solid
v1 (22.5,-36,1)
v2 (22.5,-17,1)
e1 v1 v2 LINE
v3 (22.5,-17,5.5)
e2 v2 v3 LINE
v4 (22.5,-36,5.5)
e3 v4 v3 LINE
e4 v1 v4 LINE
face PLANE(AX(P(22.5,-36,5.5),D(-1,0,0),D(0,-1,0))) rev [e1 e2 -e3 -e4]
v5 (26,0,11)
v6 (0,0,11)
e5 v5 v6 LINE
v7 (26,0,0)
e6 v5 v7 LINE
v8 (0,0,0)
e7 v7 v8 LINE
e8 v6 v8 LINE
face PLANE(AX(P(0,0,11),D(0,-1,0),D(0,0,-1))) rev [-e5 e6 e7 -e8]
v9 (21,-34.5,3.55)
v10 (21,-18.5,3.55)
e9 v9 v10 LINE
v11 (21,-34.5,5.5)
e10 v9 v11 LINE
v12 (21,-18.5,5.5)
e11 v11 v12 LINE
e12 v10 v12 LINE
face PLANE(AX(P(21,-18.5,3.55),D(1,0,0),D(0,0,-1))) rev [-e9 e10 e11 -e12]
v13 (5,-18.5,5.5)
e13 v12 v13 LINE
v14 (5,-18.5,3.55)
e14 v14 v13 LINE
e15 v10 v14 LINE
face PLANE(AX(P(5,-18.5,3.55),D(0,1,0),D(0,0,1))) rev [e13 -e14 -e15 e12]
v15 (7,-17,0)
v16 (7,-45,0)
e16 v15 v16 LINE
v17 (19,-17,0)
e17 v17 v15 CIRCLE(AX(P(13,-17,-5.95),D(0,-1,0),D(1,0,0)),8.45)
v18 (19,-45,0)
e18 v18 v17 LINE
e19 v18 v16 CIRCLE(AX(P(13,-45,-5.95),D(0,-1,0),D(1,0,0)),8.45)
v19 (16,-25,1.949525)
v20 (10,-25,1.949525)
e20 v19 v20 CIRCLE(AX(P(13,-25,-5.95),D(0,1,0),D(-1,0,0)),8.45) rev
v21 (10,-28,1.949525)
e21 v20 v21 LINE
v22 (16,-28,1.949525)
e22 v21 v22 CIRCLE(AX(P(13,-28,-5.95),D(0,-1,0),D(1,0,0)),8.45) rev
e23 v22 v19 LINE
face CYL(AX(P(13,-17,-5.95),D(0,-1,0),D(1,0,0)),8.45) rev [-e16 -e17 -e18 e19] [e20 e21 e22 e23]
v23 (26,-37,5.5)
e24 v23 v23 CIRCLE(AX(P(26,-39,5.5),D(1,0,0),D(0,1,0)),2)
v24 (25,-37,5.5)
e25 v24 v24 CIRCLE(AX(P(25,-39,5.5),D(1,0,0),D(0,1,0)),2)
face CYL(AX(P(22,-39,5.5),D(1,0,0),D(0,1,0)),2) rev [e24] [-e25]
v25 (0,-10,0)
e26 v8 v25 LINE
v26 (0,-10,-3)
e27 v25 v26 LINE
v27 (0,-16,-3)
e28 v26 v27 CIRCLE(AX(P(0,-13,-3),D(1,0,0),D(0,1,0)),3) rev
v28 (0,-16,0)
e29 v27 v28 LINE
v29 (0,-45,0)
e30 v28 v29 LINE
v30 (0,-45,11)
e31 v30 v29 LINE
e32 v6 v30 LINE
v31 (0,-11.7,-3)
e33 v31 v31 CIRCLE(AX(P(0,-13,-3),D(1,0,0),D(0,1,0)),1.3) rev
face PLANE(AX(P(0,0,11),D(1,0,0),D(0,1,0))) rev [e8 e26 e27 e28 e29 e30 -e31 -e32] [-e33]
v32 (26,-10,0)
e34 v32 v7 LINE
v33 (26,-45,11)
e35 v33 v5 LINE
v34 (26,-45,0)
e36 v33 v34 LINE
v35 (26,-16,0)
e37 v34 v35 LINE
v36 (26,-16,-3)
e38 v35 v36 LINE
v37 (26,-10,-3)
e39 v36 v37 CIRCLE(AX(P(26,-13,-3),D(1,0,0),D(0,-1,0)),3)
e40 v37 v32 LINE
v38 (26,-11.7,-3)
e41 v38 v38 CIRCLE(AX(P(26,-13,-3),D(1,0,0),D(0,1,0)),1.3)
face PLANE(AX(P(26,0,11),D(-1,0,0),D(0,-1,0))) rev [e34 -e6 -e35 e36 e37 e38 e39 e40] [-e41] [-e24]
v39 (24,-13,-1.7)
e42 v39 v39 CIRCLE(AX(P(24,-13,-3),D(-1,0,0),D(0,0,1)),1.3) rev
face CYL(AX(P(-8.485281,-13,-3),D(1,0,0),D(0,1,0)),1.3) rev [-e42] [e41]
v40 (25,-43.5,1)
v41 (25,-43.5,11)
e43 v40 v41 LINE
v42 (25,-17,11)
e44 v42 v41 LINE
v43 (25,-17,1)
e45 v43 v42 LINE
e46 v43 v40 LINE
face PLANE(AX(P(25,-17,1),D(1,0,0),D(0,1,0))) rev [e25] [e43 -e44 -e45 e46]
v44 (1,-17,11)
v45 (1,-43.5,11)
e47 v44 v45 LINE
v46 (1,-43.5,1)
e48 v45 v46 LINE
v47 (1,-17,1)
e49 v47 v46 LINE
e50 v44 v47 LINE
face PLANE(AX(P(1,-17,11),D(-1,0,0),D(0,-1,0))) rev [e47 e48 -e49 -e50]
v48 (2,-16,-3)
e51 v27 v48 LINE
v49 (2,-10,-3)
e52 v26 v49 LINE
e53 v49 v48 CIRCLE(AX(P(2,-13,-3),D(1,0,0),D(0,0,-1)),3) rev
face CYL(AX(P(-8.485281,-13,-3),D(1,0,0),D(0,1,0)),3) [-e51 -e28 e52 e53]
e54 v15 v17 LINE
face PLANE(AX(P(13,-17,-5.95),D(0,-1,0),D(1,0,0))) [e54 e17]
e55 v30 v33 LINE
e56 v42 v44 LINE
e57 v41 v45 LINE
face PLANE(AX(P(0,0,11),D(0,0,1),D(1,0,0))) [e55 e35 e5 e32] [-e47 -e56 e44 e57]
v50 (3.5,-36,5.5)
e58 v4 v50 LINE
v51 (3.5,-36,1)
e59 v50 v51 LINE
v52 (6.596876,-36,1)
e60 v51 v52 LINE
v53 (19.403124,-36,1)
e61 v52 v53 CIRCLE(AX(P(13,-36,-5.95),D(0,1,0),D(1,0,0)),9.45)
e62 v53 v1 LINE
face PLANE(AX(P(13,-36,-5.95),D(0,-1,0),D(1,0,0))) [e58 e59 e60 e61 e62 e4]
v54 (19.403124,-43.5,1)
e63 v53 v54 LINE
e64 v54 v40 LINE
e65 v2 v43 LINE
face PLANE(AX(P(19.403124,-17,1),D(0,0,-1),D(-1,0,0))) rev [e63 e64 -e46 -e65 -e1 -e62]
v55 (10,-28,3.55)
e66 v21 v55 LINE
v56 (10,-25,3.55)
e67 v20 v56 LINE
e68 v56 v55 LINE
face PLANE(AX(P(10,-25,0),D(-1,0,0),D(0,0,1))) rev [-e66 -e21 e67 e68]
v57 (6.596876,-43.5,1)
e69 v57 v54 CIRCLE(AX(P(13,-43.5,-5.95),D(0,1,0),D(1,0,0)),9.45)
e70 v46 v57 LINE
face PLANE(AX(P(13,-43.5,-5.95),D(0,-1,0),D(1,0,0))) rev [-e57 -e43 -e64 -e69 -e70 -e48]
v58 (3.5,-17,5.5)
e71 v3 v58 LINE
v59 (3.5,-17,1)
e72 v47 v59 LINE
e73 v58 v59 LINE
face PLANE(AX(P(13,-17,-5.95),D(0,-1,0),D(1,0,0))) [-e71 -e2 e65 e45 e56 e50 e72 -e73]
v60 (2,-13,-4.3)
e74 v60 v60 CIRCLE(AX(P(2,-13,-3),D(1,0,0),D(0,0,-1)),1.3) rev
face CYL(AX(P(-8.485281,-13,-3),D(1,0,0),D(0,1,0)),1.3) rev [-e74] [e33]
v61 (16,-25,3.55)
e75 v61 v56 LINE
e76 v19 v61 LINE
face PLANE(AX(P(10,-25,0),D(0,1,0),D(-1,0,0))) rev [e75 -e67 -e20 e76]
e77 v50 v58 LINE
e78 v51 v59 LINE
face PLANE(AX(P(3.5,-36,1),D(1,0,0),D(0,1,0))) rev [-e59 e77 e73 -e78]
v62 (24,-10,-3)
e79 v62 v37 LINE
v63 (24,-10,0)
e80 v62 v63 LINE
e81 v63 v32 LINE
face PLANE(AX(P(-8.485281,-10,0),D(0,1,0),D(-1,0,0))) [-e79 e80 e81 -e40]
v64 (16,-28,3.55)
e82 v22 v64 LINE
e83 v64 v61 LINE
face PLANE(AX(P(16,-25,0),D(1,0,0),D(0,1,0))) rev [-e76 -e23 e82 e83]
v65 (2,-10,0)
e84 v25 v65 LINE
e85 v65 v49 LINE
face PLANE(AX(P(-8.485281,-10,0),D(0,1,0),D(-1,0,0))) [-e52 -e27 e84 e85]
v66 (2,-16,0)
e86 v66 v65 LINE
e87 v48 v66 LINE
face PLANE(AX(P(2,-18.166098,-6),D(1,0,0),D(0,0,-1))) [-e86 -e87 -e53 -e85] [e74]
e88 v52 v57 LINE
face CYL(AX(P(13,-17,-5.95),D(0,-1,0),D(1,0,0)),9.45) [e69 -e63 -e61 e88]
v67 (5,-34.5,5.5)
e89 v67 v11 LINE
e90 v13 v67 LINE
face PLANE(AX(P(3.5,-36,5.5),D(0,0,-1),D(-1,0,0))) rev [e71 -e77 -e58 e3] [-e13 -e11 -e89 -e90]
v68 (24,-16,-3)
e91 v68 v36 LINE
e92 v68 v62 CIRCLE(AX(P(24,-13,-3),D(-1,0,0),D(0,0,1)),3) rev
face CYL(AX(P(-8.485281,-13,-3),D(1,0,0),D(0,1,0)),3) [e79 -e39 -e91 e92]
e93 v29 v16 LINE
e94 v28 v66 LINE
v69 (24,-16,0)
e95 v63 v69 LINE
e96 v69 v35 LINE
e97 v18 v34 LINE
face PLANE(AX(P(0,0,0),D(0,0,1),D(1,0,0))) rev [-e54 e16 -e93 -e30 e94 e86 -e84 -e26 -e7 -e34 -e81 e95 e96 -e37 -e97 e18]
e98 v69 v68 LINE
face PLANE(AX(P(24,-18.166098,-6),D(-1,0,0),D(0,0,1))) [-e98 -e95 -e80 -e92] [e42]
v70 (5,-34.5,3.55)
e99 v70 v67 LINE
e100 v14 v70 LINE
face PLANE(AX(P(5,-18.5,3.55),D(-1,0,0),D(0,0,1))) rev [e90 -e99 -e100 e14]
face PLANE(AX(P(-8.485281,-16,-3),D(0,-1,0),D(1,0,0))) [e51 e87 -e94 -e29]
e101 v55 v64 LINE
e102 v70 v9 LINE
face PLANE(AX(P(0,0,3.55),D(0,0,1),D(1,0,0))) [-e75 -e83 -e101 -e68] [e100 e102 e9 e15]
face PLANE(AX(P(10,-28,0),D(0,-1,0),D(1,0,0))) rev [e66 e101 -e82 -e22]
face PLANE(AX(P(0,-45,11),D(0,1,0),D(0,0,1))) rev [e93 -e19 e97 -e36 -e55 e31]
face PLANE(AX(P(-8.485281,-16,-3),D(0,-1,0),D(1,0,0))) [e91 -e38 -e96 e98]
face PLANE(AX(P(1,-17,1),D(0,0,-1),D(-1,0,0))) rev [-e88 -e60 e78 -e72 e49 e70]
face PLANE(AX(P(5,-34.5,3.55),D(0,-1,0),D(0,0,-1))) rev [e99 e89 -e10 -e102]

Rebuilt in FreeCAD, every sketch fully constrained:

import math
import FreeCAD as App
import Part
import Sketcher

V = App.Vector

doc = App.newDocument("Part")
body = doc.addObject("PartDesign::Body", "Body")

sketch1 = doc.addObject("Sketcher::SketchObject", "Sketch")
body.addObject(sketch1)
sketch1.AttachmentSupport = (doc.XY_Plane, [""])
sketch1.MapMode = "FlatFace"
sketch1.addGeometry(Part.LineSegment(V(0, 0, 0), V(0, -45, 0)), False)
sketch1.addGeometry(Part.LineSegment(V(0, -45, 0), V(26, -45, 0)), False)
sketch1.addGeometry(Part.LineSegment(V(26, -45, 0), V(26, 0, 0)), False)
sketch1.addGeometry(Part.LineSegment(V(26, 0, 0), V(0, 0, 0)), False)
sketch1.addConstraint(Sketcher.Constraint("Coincident", 0, 2, 1, 1))
sketch1.addConstraint(Sketcher.Constraint("Coincident", 1, 2, 2, 1))
sketch1.addConstraint(Sketcher.Constraint("Coincident", 2, 2, 3, 1))
sketch1.addConstraint(Sketcher.Constraint("Coincident", 3, 2, 0, 1))
sketch1.addConstraint(Sketcher.Constraint("Vertical", 0))
sketch1.addConstraint(Sketcher.Constraint("Horizontal", 1))
sketch1.addConstraint(Sketcher.Constraint("Vertical", 2))
sketch1.addConstraint(Sketcher.Constraint("Horizontal", 3))
sketch1.addConstraint(Sketcher.Constraint("Coincident", 3, 2, -1, 1))
sketch1.addConstraint(Sketcher.Constraint("DistanceX", 1, 1, 1, 2, 26.0))
sketch1.addConstraint(Sketcher.Constraint("DistanceY", 0, 2, 0, 1, 45.0))
pad1 = doc.addObject("PartDesign::Pad", "Pad")
body.addObject(pad1)
pad1.Profile = sketch1
pad1.Length = 11

sketch2 = doc.addObject("Sketcher::SketchObject", "Sketch001")
body.addObject(sketch2)
sketch2.AttachmentSupport = (doc.XZ_Plane, [""])
sketch2.MapMode = "FlatFace"
sketch2.AttachmentOffset = App.Placement(V(0, 0, 45), App.Rotation())
sketch2.addGeometry(Part.Circle(V(13, -6, 0), V(0, 0, 1), 8), False)
sketch2.addConstraint(Sketcher.Constraint("Diameter", 0, 16.9))
sketch2.addConstraint(Sketcher.Constraint("DistanceX", -1, 1, 0, 3, 13.0))
sketch2.addConstraint(Sketcher.Constraint("DistanceY", 0, 3, -1, 1, 5.95))
pocket1 = doc.addObject("PartDesign::Pocket", "Pocket")
body.addObject(pocket1)
pocket1.Profile = sketch2
pocket1.Length = 28

sketch3 = doc.addObject("Sketcher::SketchObject", "Sketch002")
body.addObject(sketch3)
sketch3.AttachmentSupport = (doc.XZ_Plane, [""])
sketch3.MapMode = "FlatFace"
sketch3.AttachmentOffset = App.Placement(V(0, 0, 43.5), App.Rotation())
sketch3.addGeometry(Part.LineSegment(V(1, 11, 0), V(1, 1, 0)), False)
sketch3.addGeometry(Part.LineSegment(V(1, 1, 0), V(7, 1, 0)), False)
sketch3.addGeometry(Part.ArcOfCircle(Part.Circle(V(13, -6, 0), V(0, 0, 1), 9), math.radians(47), math.radians(133)), False)
sketch3.addGeometry(Part.LineSegment(V(19, 1, 0), V(25, 1, 0)), False)
sketch3.addGeometry(Part.LineSegment(V(25, 1, 0), V(25, 11, 0)), False)
sketch3.addGeometry(Part.LineSegment(V(25, 11, 0), V(1, 11, 0)), False)
sketch3.addConstraint(Sketcher.Constraint("Coincident", 0, 2, 1, 1))
sketch3.addConstraint(Sketcher.Constraint("Coincident", 1, 2, 2, 2))
sketch3.addConstraint(Sketcher.Constraint("Coincident", 2, 1, 3, 1))
sketch3.addConstraint(Sketcher.Constraint("Coincident", 3, 2, 4, 1))
sketch3.addConstraint(Sketcher.Constraint("Coincident", 4, 2, 5, 1))
sketch3.addConstraint(Sketcher.Constraint("Coincident", 5, 2, 0, 1))
sketch3.addConstraint(Sketcher.Constraint("Vertical", 0))
sketch3.addConstraint(Sketcher.Constraint("Horizontal", 1))
sketch3.addConstraint(Sketcher.Constraint("Horizontal", 3))
sketch3.addConstraint(Sketcher.Constraint("Vertical", 4))
sketch3.addConstraint(Sketcher.Constraint("Horizontal", 5))
sketch3.addConstraint(Sketcher.Constraint("Horizontal", 1, 2, 2, 1))
sketch3.addConstraint(Sketcher.Constraint("Equal", 1, 3))
sketch3.addConstraint(Sketcher.Constraint("DistanceX", 5, 2, 5, 1, 24.0))
sketch3.addConstraint(Sketcher.Constraint("DistanceY", 0, 2, 0, 1, 10.0))
sketch3.addConstraint(Sketcher.Constraint("Radius", 2, 9.45))
sketch3.addConstraint(Sketcher.Constraint("DistanceX", -1, 1, 2, 3, 13.0))
sketch3.addConstraint(Sketcher.Constraint("DistanceY", -1, 1, 0, 2, 1.0))
sketch3.addConstraint(Sketcher.Constraint("DistanceY", 2, 3, -1, 1, 5.95))
pocket2 = doc.addObject("PartDesign::Pocket", "Pocket001")
body.addObject(pocket2)
pocket2.Profile = sketch3
pocket2.Length = 26.5

sketch4 = doc.addObject("Sketcher::SketchObject", "Sketch003")
body.addObject(sketch4)
sketch4.AttachmentSupport = (doc.XY_Plane, [""])
sketch4.MapMode = "FlatFace"
sketch4.AttachmentOffset = App.Placement(V(0, 0, 3.5), App.Rotation())
sketch4.addGeometry(Part.LineSegment(V(10, -25, 0), V(10, -28, 0)), False)
sketch4.addGeometry(Part.LineSegment(V(10, -28, 0), V(16, -28, 0)), False)
sketch4.addGeometry(Part.LineSegment(V(16, -28, 0), V(16, -25, 0)), False)
sketch4.addGeometry(Part.LineSegment(V(16, -25, 0), V(10, -25, 0)), False)
sketch4.addConstraint(Sketcher.Constraint("Coincident", 0, 2, 1, 1))
sketch4.addConstraint(Sketcher.Constraint("Coincident", 1, 2, 2, 1))
sketch4.addConstraint(Sketcher.Constraint("Coincident", 2, 2, 3, 1))
sketch4.addConstraint(Sketcher.Constraint("Coincident", 3, 2, 0, 1))
sketch4.addConstraint(Sketcher.Constraint("Vertical", 0))
sketch4.addConstraint(Sketcher.Constraint("Horizontal", 1))
sketch4.addConstraint(Sketcher.Constraint("Vertical", 2))
sketch4.addConstraint(Sketcher.Constraint("Horizontal", 3))
sketch4.addConstraint(Sketcher.Constraint("DistanceX", 1, 1, 1, 2, 6.0))
sketch4.addConstraint(Sketcher.Constraint("DistanceY", 0, 2, 0, 1, 3.0))
sketch4.addConstraint(Sketcher.Constraint("DistanceX", -1, 1, 0, 2, 10.0))
sketch4.addConstraint(Sketcher.Constraint("DistanceY", 0, 2, -1, 1, 28.0))
pocket3 = doc.addObject("PartDesign::Pocket", "Pocket002")
body.addObject(pocket3)
pocket3.Profile = sketch4
pocket3.Type = "ThroughAll"

sketch5 = doc.addObject("Sketcher::SketchObject", "Sketch004")
body.addObject(sketch5)
sketch5.AttachmentSupport = (doc.XZ_Plane, [""])
sketch5.MapMode = "FlatFace"
sketch5.AttachmentOffset = App.Placement(V(0, 0, 36), App.Rotation())
sketch5.addGeometry(Part.LineSegment(V(3.5, 1, 0), V(6.6, 1, 0)), False)
sketch5.addGeometry(Part.ArcOfCircle(Part.Circle(V(13, -5.9, 0), V(0, 0, 1), 9.4), math.radians(47), math.radians(133)), False)
sketch5.addGeometry(Part.LineSegment(V(19.4, 1, 0), V(22.5, 1, 0)), False)
sketch5.addGeometry(Part.LineSegment(V(22.5, 1, 0), V(22.5, 5.5, 0)), False)
sketch5.addGeometry(Part.LineSegment(V(22.5, 5.5, 0), V(3.5, 5.5, 0)), False)
sketch5.addGeometry(Part.LineSegment(V(3.5, 5.5, 0), V(3.5, 1, 0)), False)
sketch5.addConstraint(Sketcher.Constraint("Coincident", 0, 2, 1, 2))
sketch5.addConstraint(Sketcher.Constraint("Coincident", 1, 1, 2, 1))
sketch5.addConstraint(Sketcher.Constraint("Coincident", 2, 2, 3, 1))
sketch5.addConstraint(Sketcher.Constraint("Coincident", 3, 2, 4, 1))
sketch5.addConstraint(Sketcher.Constraint("Coincident", 4, 2, 5, 1))
sketch5.addConstraint(Sketcher.Constraint("Coincident", 5, 2, 0, 1))
sketch5.addConstraint(Sketcher.Constraint("Horizontal", 0))
sketch5.addConstraint(Sketcher.Constraint("Horizontal", 2))
sketch5.addConstraint(Sketcher.Constraint("Vertical", 3))
sketch5.addConstraint(Sketcher.Constraint("Horizontal", 4))
sketch5.addConstraint(Sketcher.Constraint("Vertical", 5))
sketch5.addConstraint(Sketcher.Constraint("Horizontal", 0, 2, 1, 1))
sketch5.addConstraint(Sketcher.Constraint("Equal", 0, 2))
sketch5.addConstraint(Sketcher.Constraint("DistanceX", 4, 2, 4, 1, 19.0))
sketch5.addConstraint(Sketcher.Constraint("Radius", 1, 9.45))
sketch5.addConstraint(Sketcher.Constraint("DistanceY", 3, 1, 3, 2, 4.5))
sketch5.addConstraint(Sketcher.Constraint("DistanceX", -1, 1, 1, 3, 13.0))
sketch5.addConstraint(Sketcher.Constraint("DistanceY", -1, 1, 0, 2, 1.0))
sketch5.addConstraint(Sketcher.Constraint("DistanceY", 1, 3, -1, 1, 5.95))
pad2 = doc.addObject("PartDesign::Pad", "Pad001")
body.addObject(pad2)
pad2.Profile = sketch5
pad2.Length = 19
pad2.Reversed = True

sketch6 = doc.addObject("Sketcher::SketchObject", "Sketch005")
body.addObject(sketch6)
sketch6.AttachmentSupport = (doc.XY_Plane, [""])
sketch6.MapMode = "FlatFace"
sketch6.AttachmentOffset = App.Placement(V(0, 0, 5.5), App.Rotation())
sketch6.addGeometry(Part.LineSegment(V(5, -18, 0), V(5, -34, 0)), False)
sketch6.addGeometry(Part.LineSegment(V(5, -34, 0), V(21, -34, 0)), False)
sketch6.addGeometry(Part.LineSegment(V(21, -34, 0), V(21, -18, 0)), False)
sketch6.addGeometry(Part.LineSegment(V(21, -18, 0), V(5, -18, 0)), False)
sketch6.addConstraint(Sketcher.Constraint("Coincident", 0, 2, 1, 1))
sketch6.addConstraint(Sketcher.Constraint("Coincident", 1, 2, 2, 1))
sketch6.addConstraint(Sketcher.Constraint("Coincident", 2, 2, 3, 1))
sketch6.addConstraint(Sketcher.Constraint("Coincident", 3, 2, 0, 1))
sketch6.addConstraint(Sketcher.Constraint("Vertical", 0))
sketch6.addConstraint(Sketcher.Constraint("Horizontal", 1))
sketch6.addConstraint(Sketcher.Constraint("Vertical", 2))
sketch6.addConstraint(Sketcher.Constraint("Horizontal", 3))
sketch6.addConstraint(Sketcher.Constraint("Equal", 3, 0))
sketch6.addConstraint(Sketcher.Constraint("DistanceX", 1, 1, 1, 2, 16.0))
sketch6.addConstraint(Sketcher.Constraint("DistanceX", -1, 1, 0, 2, 5.0))
sketch6.addConstraint(Sketcher.Constraint("DistanceY", 0, 2, -1, 1, 34.5))
pocket4 = doc.addObject("PartDesign::Pocket", "Pocket003")
body.addObject(pocket4)
pocket4.Profile = sketch6
pocket4.Length = 1.95

sketch7 = doc.addObject("Sketcher::SketchObject", "Sketch006")
body.addObject(sketch7)
sketch7.AttachmentSupport = (doc.XY_Plane, [""])
sketch7.MapMode = "FlatFace"
sketch7.AttachmentOffset = App.Placement(V(0, 0, 3.55), App.Rotation())
sketch7.addGeometry(Part.LineSegment(V(10, -25, 0), V(10, -28, 0)), False)
sketch7.addGeometry(Part.LineSegment(V(10, -28, 0), V(16, -28, 0)), False)
sketch7.addGeometry(Part.LineSegment(V(16, -28, 0), V(16, -25, 0)), False)
sketch7.addGeometry(Part.LineSegment(V(16, -25, 0), V(10, -25, 0)), False)
sketch7.addConstraint(Sketcher.Constraint("Coincident", 0, 2, 1, 1))
sketch7.addConstraint(Sketcher.Constraint("Coincident", 1, 2, 2, 1))
sketch7.addConstraint(Sketcher.Constraint("Coincident", 2, 2, 3, 1))
sketch7.addConstraint(Sketcher.Constraint("Coincident", 3, 2, 0, 1))
sketch7.addConstraint(Sketcher.Constraint("Vertical", 0))
sketch7.addConstraint(Sketcher.Constraint("Horizontal", 1))
sketch7.addConstraint(Sketcher.Constraint("Vertical", 2))
sketch7.addConstraint(Sketcher.Constraint("Horizontal", 3))
sketch7.addConstraint(Sketcher.Constraint("DistanceX", 1, 1, 1, 2, 6.0))
sketch7.addConstraint(Sketcher.Constraint("DistanceY", 0, 2, 0, 1, 3.0))
sketch7.addConstraint(Sketcher.Constraint("DistanceX", -1, 1, 0, 2, 10.0))
sketch7.addConstraint(Sketcher.Constraint("DistanceY", 0, 2, -1, 1, 28.0))
pocket5 = doc.addObject("PartDesign::Pocket", "Pocket004")
body.addObject(pocket5)
pocket5.Profile = sketch7
pocket5.Type = "ThroughAll"

sketch8 = doc.addObject("Sketcher::SketchObject", "Sketch007")
body.addObject(sketch8)
sketch8.AttachmentSupport = (doc.YZ_Plane, [""])
sketch8.MapMode = "FlatFace"
sketch8.AttachmentOffset = App.Placement(V(0, 0, 26), App.Rotation())
sketch8.addGeometry(Part.Circle(V(-39, 5.5, 0), V(0, 0, 1), 2), False)
sketch8.addConstraint(Sketcher.Constraint("Diameter", 0, 4.0))
sketch8.addConstraint(Sketcher.Constraint("DistanceX", 0, 3, -1, 1, 39.0))
sketch8.addConstraint(Sketcher.Constraint("DistanceY", -1, 1, 0, 3, 5.5))
pocket6 = doc.addObject("PartDesign::Pocket", "Pocket005")
body.addObject(pocket6)
pocket6.Profile = sketch8
pocket6.Length = 4

sketch9 = doc.addObject("Sketcher::SketchObject", "Sketch008")
body.addObject(sketch9)
sketch9.AttachmentSupport = (doc.YZ_Plane, [""])
sketch9.MapMode = "FlatFace"
sketch9.AttachmentOffset = App.Placement(V(0, 0, 26), App.Rotation())
sketch9.addGeometry(Part.LineSegment(V(-10, -3, 0), V(-10, 0, 0)), False)
sketch9.addGeometry(Part.LineSegment(V(-10, 0, 0), V(-16, 0, 0)), False)
sketch9.addGeometry(Part.LineSegment(V(-16, 0, 0), V(-16, -3, 0)), False)
sketch9.addGeometry(Part.ArcOfCircle(Part.Circle(V(-13, -3, 0), V(0, 0, 1), 3), math.radians(180), math.radians(360)), False)
sketch9.addGeometry(Part.Circle(V(-13, -3, 0), V(0, 0, 1), 1.3), False)
sketch9.addConstraint(Sketcher.Constraint("Coincident", 0, 2, 1, 1))
sketch9.addConstraint(Sketcher.Constraint("Coincident", 1, 2, 2, 1))
sketch9.addConstraint(Sketcher.Constraint("Tangent", 2, 2, 3, 1))
sketch9.addConstraint(Sketcher.Constraint("Tangent", 3, 2, 0, 1))
sketch9.addConstraint(Sketcher.Constraint("Vertical", 0))
sketch9.addConstraint(Sketcher.Constraint("Horizontal", 1))
sketch9.addConstraint(Sketcher.Constraint("Vertical", 2))
sketch9.addConstraint(Sketcher.Constraint("Coincident", 4, 3, 3, 3))
sketch9.addConstraint(Sketcher.Constraint("PointOnObject", 0, 2, -1))
sketch9.addConstraint(Sketcher.Constraint("Radius", 3, 3.0))
sketch9.addConstraint(Sketcher.Constraint("Diameter", 4, 2.6))
sketch9.addConstraint(Sketcher.Constraint("DistanceY", 0, 1, 0, 2, 3.0))
sketch9.addConstraint(Sketcher.Constraint("DistanceX", 3, 3, -1, 1, 13.0))
pad3 = doc.addObject("PartDesign::Pad", "Pad002")
body.addObject(pad3)
pad3.Profile = sketch9
pad3.Length = 26
pad3.Reversed = True

sketch10 = doc.addObject("Sketcher::SketchObject", "Sketch009")
body.addObject(sketch10)
sketch10.AttachmentSupport = (doc.XY_Plane, [""])
sketch10.MapMode = "FlatFace"
sketch10.addGeometry(Part.LineSegment(V(24, -5, 0), V(24, -18, 0)), False)
sketch10.addGeometry(Part.LineSegment(V(24, -18, 0), V(2, -18, 0)), False)
sketch10.addGeometry(Part.LineSegment(V(2, -18, 0), V(2, -5, 0)), False)
sketch10.addGeometry(Part.LineSegment(V(2, -5, 0), V(24, -5, 0)), False)
sketch10.addConstraint(Sketcher.Constraint("Coincident", 0, 2, 1, 1))
sketch10.addConstraint(Sketcher.Constraint("Coincident", 1, 2, 2, 1))
sketch10.addConstraint(Sketcher.Constraint("Coincident", 2, 2, 3, 1))
sketch10.addConstraint(Sketcher.Constraint("Coincident", 3, 2, 0, 1))
sketch10.addConstraint(Sketcher.Constraint("Vertical", 0))
sketch10.addConstraint(Sketcher.Constraint("Horizontal", 1))
sketch10.addConstraint(Sketcher.Constraint("Vertical", 2))
sketch10.addConstraint(Sketcher.Constraint("Horizontal", 3))
sketch10.addConstraint(Sketcher.Constraint("DistanceX", 1, 2, 1, 1, 22.0))
sketch10.addConstraint(Sketcher.Constraint("DistanceX", -1, 1, 0, 2, 24.0))
sketch10.addConstraint(Sketcher.Constraint("DistanceY", 0, 2, -1, 1, 18.166098))
sketch10.addConstraint(Sketcher.Constraint("DistanceY", 0, 2, 0, 1, 12.792254))
pocket7 = doc.addObject("PartDesign::Pocket", "Pocket006")
body.addObject(pocket7)
pocket7.Profile = sketch10
pocket7.Type = "ThroughAll"

doc.recompute()
